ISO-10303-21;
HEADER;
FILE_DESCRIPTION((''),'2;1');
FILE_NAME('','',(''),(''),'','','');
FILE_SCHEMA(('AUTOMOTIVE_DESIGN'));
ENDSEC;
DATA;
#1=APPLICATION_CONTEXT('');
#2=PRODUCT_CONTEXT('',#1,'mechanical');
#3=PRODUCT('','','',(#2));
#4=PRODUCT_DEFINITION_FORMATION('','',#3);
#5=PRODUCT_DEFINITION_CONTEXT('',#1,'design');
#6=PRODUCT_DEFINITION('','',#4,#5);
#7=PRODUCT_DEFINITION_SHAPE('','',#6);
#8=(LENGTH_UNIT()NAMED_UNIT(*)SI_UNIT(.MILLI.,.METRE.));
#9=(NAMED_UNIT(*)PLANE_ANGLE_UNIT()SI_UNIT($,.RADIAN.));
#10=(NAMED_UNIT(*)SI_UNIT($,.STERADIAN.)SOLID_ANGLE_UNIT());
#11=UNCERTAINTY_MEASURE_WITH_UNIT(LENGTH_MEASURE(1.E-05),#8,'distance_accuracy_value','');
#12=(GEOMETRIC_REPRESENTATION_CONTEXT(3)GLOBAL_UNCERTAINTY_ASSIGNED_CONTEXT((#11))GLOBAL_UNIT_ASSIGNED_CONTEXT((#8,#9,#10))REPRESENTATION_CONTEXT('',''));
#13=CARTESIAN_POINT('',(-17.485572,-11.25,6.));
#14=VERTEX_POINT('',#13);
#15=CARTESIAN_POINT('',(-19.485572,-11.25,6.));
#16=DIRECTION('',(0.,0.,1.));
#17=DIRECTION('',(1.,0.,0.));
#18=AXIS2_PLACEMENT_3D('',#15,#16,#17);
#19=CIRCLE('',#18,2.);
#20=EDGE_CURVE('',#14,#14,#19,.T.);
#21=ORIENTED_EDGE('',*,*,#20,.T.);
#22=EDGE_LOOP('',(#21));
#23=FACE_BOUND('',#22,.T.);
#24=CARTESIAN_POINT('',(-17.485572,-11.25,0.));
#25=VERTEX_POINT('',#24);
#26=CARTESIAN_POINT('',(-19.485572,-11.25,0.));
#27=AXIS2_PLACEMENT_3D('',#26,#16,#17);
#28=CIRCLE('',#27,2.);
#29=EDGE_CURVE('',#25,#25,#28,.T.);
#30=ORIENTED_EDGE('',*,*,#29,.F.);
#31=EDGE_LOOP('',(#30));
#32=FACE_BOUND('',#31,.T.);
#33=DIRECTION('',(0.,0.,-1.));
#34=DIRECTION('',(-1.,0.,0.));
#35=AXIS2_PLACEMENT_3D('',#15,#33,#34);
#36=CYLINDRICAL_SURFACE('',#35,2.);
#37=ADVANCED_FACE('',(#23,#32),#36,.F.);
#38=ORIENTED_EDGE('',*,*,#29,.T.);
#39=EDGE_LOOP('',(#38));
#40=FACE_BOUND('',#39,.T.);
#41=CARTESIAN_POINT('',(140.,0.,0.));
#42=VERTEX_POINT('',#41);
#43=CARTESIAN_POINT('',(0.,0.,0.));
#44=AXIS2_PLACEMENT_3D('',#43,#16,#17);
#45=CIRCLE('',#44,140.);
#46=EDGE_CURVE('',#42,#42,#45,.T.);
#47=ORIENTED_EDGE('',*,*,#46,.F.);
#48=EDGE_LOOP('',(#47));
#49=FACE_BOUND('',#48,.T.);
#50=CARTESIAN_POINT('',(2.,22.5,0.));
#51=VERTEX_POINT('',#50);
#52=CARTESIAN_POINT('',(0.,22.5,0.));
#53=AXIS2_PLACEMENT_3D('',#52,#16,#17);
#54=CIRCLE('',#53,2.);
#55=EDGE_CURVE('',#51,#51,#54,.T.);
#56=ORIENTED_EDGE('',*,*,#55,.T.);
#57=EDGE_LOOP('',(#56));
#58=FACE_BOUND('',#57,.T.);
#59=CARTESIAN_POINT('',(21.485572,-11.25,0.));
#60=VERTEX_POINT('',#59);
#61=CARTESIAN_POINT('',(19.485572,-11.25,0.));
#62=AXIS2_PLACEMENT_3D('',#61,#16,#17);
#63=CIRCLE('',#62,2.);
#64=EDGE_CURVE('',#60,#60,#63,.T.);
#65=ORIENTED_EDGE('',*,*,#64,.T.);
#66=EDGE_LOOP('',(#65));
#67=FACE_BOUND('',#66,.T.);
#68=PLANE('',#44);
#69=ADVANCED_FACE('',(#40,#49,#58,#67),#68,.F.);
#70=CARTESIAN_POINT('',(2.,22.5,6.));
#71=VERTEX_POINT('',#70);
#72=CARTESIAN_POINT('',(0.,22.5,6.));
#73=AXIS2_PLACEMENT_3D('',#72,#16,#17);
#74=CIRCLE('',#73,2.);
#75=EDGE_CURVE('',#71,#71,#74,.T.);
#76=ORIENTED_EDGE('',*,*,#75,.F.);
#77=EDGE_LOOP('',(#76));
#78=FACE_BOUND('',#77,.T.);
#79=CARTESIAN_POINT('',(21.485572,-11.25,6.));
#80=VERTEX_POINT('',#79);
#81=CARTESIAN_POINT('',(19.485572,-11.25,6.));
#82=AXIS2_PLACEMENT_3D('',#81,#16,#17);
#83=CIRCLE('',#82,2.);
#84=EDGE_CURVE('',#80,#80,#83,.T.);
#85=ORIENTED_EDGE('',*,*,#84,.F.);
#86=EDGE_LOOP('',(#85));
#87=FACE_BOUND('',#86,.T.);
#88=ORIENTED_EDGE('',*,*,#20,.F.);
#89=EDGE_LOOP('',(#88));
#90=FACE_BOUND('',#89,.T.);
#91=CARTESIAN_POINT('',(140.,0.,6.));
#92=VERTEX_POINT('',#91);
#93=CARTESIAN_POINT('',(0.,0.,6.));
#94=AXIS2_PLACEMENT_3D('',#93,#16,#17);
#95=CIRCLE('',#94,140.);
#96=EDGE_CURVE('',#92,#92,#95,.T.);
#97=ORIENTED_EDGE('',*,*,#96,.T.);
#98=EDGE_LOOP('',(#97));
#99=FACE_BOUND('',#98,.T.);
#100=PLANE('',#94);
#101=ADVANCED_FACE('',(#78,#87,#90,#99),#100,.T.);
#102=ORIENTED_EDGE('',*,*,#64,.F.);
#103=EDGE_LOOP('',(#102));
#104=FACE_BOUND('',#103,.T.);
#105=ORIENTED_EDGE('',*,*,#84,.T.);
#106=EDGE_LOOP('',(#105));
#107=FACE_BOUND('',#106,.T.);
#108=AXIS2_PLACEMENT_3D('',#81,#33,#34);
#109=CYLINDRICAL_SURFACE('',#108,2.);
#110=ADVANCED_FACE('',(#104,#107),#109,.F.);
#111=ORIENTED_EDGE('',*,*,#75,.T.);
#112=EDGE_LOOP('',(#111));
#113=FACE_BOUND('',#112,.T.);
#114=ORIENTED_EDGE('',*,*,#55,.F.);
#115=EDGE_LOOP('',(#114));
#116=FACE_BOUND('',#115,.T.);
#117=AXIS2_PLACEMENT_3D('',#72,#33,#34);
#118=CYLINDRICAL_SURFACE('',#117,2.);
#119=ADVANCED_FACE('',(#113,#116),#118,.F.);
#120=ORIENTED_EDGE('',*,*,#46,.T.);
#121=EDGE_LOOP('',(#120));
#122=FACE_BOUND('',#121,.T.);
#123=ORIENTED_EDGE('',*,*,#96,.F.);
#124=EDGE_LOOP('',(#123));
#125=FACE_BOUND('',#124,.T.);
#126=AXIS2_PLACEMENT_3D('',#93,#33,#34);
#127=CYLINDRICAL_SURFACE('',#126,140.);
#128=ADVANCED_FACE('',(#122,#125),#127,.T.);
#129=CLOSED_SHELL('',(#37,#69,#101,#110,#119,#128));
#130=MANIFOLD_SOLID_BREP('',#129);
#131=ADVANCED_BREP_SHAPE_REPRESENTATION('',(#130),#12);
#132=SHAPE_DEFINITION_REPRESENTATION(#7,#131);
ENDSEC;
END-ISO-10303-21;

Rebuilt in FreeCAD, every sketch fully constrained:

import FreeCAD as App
import Part
import Sketcher

doc = App.newDocument("Part")
body = doc.addObject("PartDesign::Body", "Body")

sketch1 = body.newObject("Sketcher::SketchObject", "Sketch")
sketch1.AttachmentSupport = (doc.getObject("XY_Plane"), [""])
sketch1.MapMode = "FlatFace"
sketch1.addGeometry([
    Part.Circle(App.Vector(0, 0, 0), App.Vector(0, 0, 1), 140),
    Part.Circle(App.Vector(-19.5, -11.2, 0), App.Vector(0, 0, 1), 2),
    Part.Circle(App.Vector(19.5, -11.2, 0), App.Vector(0, 0, 1), 2),
    Part.Circle(App.Vector(0, 22.5, 0), App.Vector(0, 0, 1), 2),
], False)
sketch1.addConstraint([
    Sketcher.Constraint("Coincident", 0, 3, -1, 1),
    Sketcher.Constraint("Equal", 1, 2),
    Sketcher.Constraint("Equal", 2, 3),
    Sketcher.Constraint("Symmetric", 1, 3, 2, 3, -2),
    Sketcher.Constraint("PointOnObject", 3, 3, -2),
    Sketcher.Constraint("Diameter", 0, 280.0),
    Sketcher.Constraint("Diameter", 1, 4.0),
    Sketcher.Constraint("DistanceY", -1, 1, 3, 3, 22.5),
    Sketcher.Constraint("DistanceY", 1, 3, -1, 1, 11.25),
    Sketcher.Constraint("DistanceX", 1, 3, -1, 1, 19.485572),
])
pad1 = body.newObject("PartDesign::Pad", "Pad")
pad1.Profile = sketch1
pad1.Length = 6

doc.recompute()
